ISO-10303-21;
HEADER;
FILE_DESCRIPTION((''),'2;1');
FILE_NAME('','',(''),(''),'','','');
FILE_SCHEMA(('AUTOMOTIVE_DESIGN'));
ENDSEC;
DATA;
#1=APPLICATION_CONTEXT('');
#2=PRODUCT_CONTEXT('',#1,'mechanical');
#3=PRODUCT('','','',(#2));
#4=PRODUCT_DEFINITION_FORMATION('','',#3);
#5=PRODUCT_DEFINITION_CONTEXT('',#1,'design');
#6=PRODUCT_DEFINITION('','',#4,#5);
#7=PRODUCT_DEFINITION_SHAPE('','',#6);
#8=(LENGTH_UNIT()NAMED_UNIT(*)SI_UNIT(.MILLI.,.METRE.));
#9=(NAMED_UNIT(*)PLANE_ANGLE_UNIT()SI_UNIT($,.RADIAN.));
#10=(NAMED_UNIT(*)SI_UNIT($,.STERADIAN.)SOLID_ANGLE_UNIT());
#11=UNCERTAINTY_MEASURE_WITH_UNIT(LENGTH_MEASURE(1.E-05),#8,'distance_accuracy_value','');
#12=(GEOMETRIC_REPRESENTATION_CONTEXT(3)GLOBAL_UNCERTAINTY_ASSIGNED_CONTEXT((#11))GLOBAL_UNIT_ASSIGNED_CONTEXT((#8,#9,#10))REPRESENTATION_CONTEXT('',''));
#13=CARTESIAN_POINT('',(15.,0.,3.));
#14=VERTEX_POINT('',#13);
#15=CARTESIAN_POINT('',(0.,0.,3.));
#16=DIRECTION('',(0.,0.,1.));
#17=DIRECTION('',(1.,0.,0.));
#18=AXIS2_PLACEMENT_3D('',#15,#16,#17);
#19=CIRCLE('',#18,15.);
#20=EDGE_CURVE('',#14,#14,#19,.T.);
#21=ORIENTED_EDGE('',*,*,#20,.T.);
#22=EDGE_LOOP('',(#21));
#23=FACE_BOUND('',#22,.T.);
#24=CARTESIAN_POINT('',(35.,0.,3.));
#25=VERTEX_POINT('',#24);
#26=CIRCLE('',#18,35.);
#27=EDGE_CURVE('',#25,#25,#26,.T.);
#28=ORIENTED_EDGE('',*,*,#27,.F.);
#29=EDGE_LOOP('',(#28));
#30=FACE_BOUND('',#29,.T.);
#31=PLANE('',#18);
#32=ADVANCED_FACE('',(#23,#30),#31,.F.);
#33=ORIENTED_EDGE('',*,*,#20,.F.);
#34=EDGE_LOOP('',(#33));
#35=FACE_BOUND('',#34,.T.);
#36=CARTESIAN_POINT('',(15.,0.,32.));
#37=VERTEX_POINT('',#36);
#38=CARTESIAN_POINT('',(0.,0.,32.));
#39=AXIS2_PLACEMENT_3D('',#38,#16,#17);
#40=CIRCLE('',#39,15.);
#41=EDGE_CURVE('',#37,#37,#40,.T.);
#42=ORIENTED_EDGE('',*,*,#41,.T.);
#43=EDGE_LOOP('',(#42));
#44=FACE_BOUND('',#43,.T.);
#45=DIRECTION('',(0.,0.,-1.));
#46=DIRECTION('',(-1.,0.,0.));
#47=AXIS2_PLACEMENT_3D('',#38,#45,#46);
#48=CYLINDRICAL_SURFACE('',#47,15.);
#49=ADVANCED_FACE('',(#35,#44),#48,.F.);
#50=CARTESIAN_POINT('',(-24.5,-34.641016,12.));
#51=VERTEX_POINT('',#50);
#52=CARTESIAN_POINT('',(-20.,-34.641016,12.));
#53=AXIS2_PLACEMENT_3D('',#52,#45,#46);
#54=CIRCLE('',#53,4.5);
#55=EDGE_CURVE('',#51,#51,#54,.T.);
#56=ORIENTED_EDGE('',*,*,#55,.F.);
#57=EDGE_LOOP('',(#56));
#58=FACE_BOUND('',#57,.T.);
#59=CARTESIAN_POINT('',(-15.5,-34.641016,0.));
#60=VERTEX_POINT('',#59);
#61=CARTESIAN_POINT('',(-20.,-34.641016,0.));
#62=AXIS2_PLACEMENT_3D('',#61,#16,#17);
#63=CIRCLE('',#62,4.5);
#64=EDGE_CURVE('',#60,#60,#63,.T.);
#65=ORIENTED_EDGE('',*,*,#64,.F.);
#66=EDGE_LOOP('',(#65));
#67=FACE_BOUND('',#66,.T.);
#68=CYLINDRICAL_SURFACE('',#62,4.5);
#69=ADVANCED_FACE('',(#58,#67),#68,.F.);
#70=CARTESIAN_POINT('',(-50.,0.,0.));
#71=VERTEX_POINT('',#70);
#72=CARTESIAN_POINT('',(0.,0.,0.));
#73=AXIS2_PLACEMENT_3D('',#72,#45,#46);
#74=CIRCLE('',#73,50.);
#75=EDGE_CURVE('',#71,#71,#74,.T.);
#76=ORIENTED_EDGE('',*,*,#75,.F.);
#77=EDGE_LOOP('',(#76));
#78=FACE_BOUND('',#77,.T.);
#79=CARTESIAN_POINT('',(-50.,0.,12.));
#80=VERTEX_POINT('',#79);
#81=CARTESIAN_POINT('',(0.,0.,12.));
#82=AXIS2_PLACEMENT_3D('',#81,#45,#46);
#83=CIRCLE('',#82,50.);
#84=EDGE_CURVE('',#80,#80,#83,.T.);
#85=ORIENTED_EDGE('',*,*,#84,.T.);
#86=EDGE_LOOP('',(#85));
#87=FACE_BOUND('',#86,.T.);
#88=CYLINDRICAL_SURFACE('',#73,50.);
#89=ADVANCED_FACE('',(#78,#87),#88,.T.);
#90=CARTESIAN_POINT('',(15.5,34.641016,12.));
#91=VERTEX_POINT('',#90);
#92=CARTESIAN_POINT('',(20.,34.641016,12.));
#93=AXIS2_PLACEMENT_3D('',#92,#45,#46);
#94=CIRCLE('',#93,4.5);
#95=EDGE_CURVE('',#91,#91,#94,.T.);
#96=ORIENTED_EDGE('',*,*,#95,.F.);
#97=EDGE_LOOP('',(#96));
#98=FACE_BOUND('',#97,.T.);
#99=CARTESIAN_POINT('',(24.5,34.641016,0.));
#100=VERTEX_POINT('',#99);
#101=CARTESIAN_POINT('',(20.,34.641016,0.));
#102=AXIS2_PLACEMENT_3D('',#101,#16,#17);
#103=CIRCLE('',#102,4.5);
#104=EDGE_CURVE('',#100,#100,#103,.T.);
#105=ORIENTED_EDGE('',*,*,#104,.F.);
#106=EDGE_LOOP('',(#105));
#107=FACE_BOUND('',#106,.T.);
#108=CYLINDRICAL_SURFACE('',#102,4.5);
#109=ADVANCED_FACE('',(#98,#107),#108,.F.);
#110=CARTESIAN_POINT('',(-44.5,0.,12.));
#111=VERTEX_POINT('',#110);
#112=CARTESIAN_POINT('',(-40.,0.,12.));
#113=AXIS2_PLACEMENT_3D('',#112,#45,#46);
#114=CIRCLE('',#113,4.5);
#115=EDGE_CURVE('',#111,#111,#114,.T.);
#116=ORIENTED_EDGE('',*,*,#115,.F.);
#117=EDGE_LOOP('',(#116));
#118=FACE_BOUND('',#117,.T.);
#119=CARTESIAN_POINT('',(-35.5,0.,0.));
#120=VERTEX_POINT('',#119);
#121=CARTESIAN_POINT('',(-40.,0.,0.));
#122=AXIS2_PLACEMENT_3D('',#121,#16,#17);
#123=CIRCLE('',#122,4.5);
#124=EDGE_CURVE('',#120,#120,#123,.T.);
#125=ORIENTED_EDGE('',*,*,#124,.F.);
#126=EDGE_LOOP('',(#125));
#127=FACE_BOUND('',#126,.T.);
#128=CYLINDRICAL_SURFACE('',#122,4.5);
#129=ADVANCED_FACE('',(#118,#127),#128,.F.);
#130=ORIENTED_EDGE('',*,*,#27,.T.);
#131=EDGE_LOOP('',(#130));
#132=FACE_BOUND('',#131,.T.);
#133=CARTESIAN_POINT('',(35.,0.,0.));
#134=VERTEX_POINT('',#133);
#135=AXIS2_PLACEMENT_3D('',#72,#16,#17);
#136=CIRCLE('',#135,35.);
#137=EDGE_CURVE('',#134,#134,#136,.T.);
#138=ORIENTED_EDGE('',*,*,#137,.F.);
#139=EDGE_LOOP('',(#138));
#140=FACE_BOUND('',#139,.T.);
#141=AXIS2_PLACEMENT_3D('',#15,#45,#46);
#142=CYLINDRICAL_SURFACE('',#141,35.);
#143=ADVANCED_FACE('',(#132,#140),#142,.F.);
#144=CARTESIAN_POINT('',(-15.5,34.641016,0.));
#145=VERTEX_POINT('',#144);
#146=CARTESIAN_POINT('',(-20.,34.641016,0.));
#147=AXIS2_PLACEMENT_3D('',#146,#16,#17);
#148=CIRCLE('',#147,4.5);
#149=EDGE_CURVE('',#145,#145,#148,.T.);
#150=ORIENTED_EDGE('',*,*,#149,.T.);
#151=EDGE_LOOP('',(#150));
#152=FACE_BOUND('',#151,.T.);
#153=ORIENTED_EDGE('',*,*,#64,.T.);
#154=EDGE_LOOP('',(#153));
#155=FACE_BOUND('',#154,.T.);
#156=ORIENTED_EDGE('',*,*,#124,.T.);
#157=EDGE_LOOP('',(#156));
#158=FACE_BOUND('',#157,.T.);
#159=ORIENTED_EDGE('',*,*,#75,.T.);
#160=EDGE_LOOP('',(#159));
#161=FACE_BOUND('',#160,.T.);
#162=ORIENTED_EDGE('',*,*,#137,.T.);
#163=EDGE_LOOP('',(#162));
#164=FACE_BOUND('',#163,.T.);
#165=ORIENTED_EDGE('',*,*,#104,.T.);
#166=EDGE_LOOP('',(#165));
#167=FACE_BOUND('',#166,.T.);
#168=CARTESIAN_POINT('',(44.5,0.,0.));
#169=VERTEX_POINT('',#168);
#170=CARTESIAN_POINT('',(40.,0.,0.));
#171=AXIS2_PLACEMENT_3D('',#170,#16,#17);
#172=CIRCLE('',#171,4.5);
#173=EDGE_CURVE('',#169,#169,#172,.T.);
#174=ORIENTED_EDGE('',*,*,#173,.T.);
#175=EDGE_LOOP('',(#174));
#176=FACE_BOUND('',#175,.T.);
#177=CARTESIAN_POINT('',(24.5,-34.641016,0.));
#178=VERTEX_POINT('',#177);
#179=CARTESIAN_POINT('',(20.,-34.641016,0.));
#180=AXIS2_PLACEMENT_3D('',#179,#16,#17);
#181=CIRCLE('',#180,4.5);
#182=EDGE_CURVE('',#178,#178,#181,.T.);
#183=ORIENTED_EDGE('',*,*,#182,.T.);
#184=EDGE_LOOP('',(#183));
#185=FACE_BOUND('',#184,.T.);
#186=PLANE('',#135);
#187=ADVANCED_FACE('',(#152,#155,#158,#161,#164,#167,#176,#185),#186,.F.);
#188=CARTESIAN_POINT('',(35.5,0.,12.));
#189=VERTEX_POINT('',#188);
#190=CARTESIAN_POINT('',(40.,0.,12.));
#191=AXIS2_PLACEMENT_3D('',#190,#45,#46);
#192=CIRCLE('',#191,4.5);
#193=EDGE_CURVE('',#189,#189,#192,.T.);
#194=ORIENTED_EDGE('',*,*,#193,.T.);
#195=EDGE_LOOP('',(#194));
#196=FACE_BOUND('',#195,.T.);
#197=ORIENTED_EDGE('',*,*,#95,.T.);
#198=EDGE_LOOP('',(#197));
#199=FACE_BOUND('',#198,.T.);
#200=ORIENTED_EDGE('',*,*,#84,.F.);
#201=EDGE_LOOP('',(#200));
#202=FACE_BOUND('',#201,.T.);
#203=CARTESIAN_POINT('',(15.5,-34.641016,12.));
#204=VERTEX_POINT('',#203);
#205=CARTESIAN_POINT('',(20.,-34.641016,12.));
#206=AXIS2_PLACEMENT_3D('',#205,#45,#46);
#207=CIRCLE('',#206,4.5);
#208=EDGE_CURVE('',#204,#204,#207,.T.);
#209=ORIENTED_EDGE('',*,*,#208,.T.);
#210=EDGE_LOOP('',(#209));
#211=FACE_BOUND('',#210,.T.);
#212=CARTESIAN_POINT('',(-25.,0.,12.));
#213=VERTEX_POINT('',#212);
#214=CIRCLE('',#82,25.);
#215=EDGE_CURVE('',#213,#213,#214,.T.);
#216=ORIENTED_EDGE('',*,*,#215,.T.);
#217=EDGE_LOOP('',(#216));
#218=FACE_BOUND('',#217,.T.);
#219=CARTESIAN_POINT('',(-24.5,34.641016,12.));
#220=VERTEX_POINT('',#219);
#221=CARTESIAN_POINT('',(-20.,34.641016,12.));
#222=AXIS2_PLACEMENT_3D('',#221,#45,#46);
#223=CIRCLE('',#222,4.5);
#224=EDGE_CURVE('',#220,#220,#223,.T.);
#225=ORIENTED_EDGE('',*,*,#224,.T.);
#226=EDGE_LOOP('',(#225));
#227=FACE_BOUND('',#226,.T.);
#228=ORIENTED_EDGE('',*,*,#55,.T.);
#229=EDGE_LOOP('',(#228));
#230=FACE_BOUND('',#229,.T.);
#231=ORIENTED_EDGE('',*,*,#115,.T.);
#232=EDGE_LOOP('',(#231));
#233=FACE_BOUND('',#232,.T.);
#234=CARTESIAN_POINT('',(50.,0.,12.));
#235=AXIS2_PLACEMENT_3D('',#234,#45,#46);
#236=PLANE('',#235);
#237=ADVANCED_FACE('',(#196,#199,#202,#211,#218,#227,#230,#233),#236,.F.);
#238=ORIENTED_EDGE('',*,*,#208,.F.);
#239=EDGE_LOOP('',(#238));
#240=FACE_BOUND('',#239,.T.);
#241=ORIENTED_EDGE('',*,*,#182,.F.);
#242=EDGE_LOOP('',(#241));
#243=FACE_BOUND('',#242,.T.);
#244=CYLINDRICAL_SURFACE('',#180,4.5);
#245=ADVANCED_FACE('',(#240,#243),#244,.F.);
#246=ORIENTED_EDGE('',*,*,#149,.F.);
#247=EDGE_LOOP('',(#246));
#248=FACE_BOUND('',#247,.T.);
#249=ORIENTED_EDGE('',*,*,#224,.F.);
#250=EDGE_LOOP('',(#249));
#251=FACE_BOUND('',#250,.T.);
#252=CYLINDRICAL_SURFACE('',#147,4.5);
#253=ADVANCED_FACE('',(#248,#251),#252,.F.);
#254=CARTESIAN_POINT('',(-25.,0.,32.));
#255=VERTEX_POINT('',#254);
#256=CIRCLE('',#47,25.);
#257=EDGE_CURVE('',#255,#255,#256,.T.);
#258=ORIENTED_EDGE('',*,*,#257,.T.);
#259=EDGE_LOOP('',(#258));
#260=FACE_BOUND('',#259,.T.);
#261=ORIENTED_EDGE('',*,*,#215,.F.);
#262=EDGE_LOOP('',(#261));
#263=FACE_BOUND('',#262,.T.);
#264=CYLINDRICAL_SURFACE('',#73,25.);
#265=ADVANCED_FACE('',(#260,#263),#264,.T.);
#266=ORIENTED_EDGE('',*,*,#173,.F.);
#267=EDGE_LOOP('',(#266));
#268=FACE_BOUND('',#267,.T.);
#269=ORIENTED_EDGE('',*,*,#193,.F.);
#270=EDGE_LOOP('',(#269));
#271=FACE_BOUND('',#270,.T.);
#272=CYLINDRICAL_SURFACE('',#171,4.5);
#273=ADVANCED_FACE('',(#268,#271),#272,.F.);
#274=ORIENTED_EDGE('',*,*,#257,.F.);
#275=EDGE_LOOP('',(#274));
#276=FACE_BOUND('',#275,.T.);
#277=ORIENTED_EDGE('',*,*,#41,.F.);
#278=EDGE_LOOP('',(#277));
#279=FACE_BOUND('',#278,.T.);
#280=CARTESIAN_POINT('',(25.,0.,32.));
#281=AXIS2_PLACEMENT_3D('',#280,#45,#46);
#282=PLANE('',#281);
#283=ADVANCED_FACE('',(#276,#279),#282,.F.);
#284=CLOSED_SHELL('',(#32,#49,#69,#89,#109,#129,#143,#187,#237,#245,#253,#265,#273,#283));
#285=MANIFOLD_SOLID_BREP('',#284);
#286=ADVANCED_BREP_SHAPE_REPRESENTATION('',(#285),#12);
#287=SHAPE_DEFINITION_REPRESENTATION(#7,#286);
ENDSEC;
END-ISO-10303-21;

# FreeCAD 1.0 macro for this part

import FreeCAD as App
import Part
import Sketcher

V = App.Vector
Q = App.Units.Quantity


def add_polygon(sketch, points):
    """Adds a closed chain of lines whose ends are joined by coincident constraints."""
    first, n = sketch.GeometryCount, len(points)
    for a, b in zip(points, points[1:] + points[:1]):
        sketch.addGeometry(Part.LineSegment(App.Vector(*a, 0), App.Vector(*b, 0)), False)
    for i in range(n):
        sketch.addConstraint(Sketcher.Constraint("Coincident", first + i, 2, first + (i + 1) % n, 1))

doc = App.newDocument("Part")
params = doc.addObject("Spreadsheet::Sheet", "Params")
for row, (alias, value) in enumerate([
    ("sketch1_width", "50 mm"),
    ("sketch1_height", "32 mm"),
    ("sketch1_height2", "20 mm"),
    ("revolution_angle", "360 deg"),
    ("sketch2_diameter", "30 mm"),
    ("sketch3_diameter", "70 mm"),
    ("pocket2_length", "3 mm"),
    ("sketch4_diameter", "9 mm"),
], start=1):
    params.set(f"A{row}", alias)
    params.set(f"B{row}", "=" + value)
    params.setAlias(f"B{row}", alias)

body = doc.addObject("PartDesign::Body", "Body")

sketch1 = body.newObject("Sketcher::SketchObject", "Sketch")
sketch1.AttachmentSupport = (doc.getObject("XZ_Plane"), [""])
sketch1.MapMode = "FlatFace"
add_polygon(sketch1, [(50, 0), (0, 0), (0, 32), (25, 32), (25, 12), (50, 12)])
sketch1.addConstraint(Sketcher.Constraint("Horizontal", 0))
sketch1.addConstraint(Sketcher.Constraint("Vertical", 1))
sketch1.addConstraint(Sketcher.Constraint("Horizontal", 2))
sketch1.addConstraint(Sketcher.Constraint("Vertical", 3))
sketch1.addConstraint(Sketcher.Constraint("Horizontal", 4))
sketch1.addConstraint(Sketcher.Constraint("Vertical", 5))
sketch1.addConstraint(Sketcher.Constraint("Coincident", 0, 2, -1, 1))
sketch1.addConstraint(Sketcher.Constraint("Equal", 2, 4))
sketch1.addConstraint(Sketcher.Constraint("DistanceX", 0, 2, 0, 1, Q("50 mm")))
sketch1.addConstraint(Sketcher.Constraint("DistanceY", 1, 1, 1, 2, Q("32 mm")))
sketch1.addConstraint(Sketcher.Constraint("DistanceY", 3, 2, 3, 1, Q("20 mm")))
sketch1.setExpression("Constraints[14]", "Params.sketch1_width")
sketch1.setExpression("Constraints[15]", "Params.sketch1_height")
sketch1.setExpression("Constraints[16]", "Params.sketch1_height2")
revolution = body.newObject("PartDesign::Revolution", "Revolution")
revolution.Profile = sketch1
revolution.ReferenceAxis = (sketch1, ["V_Axis"])
revolution.setExpression("Angle", "Params.revolution_angle")

sketch2 = body.newObject("Sketcher::SketchObject", "Sketch001")
sketch2.AttachmentSupport = (doc.getObject("XY_Plane"), [""])
sketch2.MapMode = "FlatFace"
sketch2.addGeometry(Part.Circle(V(0, 0, 0), V(0, 0, 1), 15), False)
sketch2.addConstraint(Sketcher.Constraint("Coincident", 0, 3, -1, 1))
sketch2.addConstraint(Sketcher.Constraint("Diameter", 0, Q("30 mm")))
sketch2.setExpression("Constraints[1]", "Params.sketch2_diameter")
pocket1 = body.newObject("PartDesign::Pocket", "Pocket")
pocket1.Profile = sketch2
pocket1.Type = "ThroughAll"
pocket1.Reversed = True

sketch3 = body.newObject("Sketcher::SketchObject", "Sketch002")
sketch3.AttachmentSupport = (doc.getObject("XY_Plane"), [""])
sketch3.MapMode = "FlatFace"
sketch3.addGeometry(Part.Circle(V(0, 0, 0), V(0, 0, 1), 35), False)
sketch3.addConstraint(Sketcher.Constraint("Coincident", 0, 3, -1, 1))
sketch3.addConstraint(Sketcher.Constraint("Diameter", 0, Q("70 mm")))
sketch3.setExpression("Constraints[1]", "Params.sketch3_diameter")
pocket2 = body.newObject("PartDesign::Pocket", "Pocket001")
pocket2.Profile = sketch3
pocket2.setExpression("Length", "Params.pocket2_length")
pocket2.Reversed = True

sketch4 = body.newObject("Sketcher::SketchObject", "Sketch003")
sketch4.AttachmentSupport = (doc.getObject("XY_Plane"), [""])
sketch4.MapMode = "FlatFace"
sketch4.AttachmentOffset = App.Placement(V(0, 0, 32), App.Rotation())
sketch4.addGeometry(Part.Circle(V(40, 0, 0), V(0, 0, 1), 4.5), False)
sketch4.addGeometry(Part.Circle(V(20, 34.6, 0), V(0, 0, 1), 4.5), False)
sketch4.addGeometry(Part.Circle(V(-20, 34.6, 0), V(0, 0, 1), 4.5), False)
sketch4.addGeometry(Part.Circle(V(-40, 0, 0), V(0, 0, 1), 4.5), False)
sketch4.addGeometry(Part.Circle(V(-20, -34.6, 0), V(0, 0, 1), 4.5), False)
sketch4.addGeometry(Part.Circle(V(20, -34.6, 0), V(0, 0, 1), 4.5), False)
sketch4.addConstraint(Sketcher.Constraint("Equal", 0, 1))
sketch4.addConstraint(Sketcher.Constraint("Equal", 1, 2))
sketch4.addConstraint(Sketcher.Constraint("Equal", 2, 3))
sketch4.addConstraint(Sketcher.Constraint("Equal", 3, 4))
sketch4.addConstraint(Sketcher.Constraint("Equal", 4, 5))
sketch4.addConstraint(Sketcher.Constraint("Symmetric", 0, 3, 3, 3, -1, 1))
sketch4.addConstraint(Sketcher.Constraint("Symmetric", 1, 3, 4, 3, -1, 1))
sketch4.addConstraint(Sketcher.Constraint("Symmetric", 2, 3, 5, 3, -1, 1))
sketch4.addConstraint(Sketcher.Constraint("Symmetric", 1, 3, 2, 3, -2))
sketch4.addConstraint(Sketcher.Constraint("PointOnObject", 0, 3, -1))
sketch4.addConstraint(Sketcher.Constraint("Diameter", 0, Q("9 mm")))
sketch4.addConstraint(Sketcher.Constraint("DistanceX", -1, 1, 0, 3, Q("40 mm")))
sketch4.addConstraint(Sketcher.Constraint("DistanceX", -1, 1, 1, 3, Q("20 mm")))
sketch4.addConstraint(Sketcher.Constraint("DistanceY", 4, 3, 2, 3, Q("69.282032 mm")))
sketch4.setExpression("Constraints[10]", "Params.sketch4_diameter")
pocket3 = body.newObject("PartDesign::Pocket", "Pocket002")
pocket3.Profile = sketch4
pocket3.Type = "ThroughAll"

doc.recompute()
